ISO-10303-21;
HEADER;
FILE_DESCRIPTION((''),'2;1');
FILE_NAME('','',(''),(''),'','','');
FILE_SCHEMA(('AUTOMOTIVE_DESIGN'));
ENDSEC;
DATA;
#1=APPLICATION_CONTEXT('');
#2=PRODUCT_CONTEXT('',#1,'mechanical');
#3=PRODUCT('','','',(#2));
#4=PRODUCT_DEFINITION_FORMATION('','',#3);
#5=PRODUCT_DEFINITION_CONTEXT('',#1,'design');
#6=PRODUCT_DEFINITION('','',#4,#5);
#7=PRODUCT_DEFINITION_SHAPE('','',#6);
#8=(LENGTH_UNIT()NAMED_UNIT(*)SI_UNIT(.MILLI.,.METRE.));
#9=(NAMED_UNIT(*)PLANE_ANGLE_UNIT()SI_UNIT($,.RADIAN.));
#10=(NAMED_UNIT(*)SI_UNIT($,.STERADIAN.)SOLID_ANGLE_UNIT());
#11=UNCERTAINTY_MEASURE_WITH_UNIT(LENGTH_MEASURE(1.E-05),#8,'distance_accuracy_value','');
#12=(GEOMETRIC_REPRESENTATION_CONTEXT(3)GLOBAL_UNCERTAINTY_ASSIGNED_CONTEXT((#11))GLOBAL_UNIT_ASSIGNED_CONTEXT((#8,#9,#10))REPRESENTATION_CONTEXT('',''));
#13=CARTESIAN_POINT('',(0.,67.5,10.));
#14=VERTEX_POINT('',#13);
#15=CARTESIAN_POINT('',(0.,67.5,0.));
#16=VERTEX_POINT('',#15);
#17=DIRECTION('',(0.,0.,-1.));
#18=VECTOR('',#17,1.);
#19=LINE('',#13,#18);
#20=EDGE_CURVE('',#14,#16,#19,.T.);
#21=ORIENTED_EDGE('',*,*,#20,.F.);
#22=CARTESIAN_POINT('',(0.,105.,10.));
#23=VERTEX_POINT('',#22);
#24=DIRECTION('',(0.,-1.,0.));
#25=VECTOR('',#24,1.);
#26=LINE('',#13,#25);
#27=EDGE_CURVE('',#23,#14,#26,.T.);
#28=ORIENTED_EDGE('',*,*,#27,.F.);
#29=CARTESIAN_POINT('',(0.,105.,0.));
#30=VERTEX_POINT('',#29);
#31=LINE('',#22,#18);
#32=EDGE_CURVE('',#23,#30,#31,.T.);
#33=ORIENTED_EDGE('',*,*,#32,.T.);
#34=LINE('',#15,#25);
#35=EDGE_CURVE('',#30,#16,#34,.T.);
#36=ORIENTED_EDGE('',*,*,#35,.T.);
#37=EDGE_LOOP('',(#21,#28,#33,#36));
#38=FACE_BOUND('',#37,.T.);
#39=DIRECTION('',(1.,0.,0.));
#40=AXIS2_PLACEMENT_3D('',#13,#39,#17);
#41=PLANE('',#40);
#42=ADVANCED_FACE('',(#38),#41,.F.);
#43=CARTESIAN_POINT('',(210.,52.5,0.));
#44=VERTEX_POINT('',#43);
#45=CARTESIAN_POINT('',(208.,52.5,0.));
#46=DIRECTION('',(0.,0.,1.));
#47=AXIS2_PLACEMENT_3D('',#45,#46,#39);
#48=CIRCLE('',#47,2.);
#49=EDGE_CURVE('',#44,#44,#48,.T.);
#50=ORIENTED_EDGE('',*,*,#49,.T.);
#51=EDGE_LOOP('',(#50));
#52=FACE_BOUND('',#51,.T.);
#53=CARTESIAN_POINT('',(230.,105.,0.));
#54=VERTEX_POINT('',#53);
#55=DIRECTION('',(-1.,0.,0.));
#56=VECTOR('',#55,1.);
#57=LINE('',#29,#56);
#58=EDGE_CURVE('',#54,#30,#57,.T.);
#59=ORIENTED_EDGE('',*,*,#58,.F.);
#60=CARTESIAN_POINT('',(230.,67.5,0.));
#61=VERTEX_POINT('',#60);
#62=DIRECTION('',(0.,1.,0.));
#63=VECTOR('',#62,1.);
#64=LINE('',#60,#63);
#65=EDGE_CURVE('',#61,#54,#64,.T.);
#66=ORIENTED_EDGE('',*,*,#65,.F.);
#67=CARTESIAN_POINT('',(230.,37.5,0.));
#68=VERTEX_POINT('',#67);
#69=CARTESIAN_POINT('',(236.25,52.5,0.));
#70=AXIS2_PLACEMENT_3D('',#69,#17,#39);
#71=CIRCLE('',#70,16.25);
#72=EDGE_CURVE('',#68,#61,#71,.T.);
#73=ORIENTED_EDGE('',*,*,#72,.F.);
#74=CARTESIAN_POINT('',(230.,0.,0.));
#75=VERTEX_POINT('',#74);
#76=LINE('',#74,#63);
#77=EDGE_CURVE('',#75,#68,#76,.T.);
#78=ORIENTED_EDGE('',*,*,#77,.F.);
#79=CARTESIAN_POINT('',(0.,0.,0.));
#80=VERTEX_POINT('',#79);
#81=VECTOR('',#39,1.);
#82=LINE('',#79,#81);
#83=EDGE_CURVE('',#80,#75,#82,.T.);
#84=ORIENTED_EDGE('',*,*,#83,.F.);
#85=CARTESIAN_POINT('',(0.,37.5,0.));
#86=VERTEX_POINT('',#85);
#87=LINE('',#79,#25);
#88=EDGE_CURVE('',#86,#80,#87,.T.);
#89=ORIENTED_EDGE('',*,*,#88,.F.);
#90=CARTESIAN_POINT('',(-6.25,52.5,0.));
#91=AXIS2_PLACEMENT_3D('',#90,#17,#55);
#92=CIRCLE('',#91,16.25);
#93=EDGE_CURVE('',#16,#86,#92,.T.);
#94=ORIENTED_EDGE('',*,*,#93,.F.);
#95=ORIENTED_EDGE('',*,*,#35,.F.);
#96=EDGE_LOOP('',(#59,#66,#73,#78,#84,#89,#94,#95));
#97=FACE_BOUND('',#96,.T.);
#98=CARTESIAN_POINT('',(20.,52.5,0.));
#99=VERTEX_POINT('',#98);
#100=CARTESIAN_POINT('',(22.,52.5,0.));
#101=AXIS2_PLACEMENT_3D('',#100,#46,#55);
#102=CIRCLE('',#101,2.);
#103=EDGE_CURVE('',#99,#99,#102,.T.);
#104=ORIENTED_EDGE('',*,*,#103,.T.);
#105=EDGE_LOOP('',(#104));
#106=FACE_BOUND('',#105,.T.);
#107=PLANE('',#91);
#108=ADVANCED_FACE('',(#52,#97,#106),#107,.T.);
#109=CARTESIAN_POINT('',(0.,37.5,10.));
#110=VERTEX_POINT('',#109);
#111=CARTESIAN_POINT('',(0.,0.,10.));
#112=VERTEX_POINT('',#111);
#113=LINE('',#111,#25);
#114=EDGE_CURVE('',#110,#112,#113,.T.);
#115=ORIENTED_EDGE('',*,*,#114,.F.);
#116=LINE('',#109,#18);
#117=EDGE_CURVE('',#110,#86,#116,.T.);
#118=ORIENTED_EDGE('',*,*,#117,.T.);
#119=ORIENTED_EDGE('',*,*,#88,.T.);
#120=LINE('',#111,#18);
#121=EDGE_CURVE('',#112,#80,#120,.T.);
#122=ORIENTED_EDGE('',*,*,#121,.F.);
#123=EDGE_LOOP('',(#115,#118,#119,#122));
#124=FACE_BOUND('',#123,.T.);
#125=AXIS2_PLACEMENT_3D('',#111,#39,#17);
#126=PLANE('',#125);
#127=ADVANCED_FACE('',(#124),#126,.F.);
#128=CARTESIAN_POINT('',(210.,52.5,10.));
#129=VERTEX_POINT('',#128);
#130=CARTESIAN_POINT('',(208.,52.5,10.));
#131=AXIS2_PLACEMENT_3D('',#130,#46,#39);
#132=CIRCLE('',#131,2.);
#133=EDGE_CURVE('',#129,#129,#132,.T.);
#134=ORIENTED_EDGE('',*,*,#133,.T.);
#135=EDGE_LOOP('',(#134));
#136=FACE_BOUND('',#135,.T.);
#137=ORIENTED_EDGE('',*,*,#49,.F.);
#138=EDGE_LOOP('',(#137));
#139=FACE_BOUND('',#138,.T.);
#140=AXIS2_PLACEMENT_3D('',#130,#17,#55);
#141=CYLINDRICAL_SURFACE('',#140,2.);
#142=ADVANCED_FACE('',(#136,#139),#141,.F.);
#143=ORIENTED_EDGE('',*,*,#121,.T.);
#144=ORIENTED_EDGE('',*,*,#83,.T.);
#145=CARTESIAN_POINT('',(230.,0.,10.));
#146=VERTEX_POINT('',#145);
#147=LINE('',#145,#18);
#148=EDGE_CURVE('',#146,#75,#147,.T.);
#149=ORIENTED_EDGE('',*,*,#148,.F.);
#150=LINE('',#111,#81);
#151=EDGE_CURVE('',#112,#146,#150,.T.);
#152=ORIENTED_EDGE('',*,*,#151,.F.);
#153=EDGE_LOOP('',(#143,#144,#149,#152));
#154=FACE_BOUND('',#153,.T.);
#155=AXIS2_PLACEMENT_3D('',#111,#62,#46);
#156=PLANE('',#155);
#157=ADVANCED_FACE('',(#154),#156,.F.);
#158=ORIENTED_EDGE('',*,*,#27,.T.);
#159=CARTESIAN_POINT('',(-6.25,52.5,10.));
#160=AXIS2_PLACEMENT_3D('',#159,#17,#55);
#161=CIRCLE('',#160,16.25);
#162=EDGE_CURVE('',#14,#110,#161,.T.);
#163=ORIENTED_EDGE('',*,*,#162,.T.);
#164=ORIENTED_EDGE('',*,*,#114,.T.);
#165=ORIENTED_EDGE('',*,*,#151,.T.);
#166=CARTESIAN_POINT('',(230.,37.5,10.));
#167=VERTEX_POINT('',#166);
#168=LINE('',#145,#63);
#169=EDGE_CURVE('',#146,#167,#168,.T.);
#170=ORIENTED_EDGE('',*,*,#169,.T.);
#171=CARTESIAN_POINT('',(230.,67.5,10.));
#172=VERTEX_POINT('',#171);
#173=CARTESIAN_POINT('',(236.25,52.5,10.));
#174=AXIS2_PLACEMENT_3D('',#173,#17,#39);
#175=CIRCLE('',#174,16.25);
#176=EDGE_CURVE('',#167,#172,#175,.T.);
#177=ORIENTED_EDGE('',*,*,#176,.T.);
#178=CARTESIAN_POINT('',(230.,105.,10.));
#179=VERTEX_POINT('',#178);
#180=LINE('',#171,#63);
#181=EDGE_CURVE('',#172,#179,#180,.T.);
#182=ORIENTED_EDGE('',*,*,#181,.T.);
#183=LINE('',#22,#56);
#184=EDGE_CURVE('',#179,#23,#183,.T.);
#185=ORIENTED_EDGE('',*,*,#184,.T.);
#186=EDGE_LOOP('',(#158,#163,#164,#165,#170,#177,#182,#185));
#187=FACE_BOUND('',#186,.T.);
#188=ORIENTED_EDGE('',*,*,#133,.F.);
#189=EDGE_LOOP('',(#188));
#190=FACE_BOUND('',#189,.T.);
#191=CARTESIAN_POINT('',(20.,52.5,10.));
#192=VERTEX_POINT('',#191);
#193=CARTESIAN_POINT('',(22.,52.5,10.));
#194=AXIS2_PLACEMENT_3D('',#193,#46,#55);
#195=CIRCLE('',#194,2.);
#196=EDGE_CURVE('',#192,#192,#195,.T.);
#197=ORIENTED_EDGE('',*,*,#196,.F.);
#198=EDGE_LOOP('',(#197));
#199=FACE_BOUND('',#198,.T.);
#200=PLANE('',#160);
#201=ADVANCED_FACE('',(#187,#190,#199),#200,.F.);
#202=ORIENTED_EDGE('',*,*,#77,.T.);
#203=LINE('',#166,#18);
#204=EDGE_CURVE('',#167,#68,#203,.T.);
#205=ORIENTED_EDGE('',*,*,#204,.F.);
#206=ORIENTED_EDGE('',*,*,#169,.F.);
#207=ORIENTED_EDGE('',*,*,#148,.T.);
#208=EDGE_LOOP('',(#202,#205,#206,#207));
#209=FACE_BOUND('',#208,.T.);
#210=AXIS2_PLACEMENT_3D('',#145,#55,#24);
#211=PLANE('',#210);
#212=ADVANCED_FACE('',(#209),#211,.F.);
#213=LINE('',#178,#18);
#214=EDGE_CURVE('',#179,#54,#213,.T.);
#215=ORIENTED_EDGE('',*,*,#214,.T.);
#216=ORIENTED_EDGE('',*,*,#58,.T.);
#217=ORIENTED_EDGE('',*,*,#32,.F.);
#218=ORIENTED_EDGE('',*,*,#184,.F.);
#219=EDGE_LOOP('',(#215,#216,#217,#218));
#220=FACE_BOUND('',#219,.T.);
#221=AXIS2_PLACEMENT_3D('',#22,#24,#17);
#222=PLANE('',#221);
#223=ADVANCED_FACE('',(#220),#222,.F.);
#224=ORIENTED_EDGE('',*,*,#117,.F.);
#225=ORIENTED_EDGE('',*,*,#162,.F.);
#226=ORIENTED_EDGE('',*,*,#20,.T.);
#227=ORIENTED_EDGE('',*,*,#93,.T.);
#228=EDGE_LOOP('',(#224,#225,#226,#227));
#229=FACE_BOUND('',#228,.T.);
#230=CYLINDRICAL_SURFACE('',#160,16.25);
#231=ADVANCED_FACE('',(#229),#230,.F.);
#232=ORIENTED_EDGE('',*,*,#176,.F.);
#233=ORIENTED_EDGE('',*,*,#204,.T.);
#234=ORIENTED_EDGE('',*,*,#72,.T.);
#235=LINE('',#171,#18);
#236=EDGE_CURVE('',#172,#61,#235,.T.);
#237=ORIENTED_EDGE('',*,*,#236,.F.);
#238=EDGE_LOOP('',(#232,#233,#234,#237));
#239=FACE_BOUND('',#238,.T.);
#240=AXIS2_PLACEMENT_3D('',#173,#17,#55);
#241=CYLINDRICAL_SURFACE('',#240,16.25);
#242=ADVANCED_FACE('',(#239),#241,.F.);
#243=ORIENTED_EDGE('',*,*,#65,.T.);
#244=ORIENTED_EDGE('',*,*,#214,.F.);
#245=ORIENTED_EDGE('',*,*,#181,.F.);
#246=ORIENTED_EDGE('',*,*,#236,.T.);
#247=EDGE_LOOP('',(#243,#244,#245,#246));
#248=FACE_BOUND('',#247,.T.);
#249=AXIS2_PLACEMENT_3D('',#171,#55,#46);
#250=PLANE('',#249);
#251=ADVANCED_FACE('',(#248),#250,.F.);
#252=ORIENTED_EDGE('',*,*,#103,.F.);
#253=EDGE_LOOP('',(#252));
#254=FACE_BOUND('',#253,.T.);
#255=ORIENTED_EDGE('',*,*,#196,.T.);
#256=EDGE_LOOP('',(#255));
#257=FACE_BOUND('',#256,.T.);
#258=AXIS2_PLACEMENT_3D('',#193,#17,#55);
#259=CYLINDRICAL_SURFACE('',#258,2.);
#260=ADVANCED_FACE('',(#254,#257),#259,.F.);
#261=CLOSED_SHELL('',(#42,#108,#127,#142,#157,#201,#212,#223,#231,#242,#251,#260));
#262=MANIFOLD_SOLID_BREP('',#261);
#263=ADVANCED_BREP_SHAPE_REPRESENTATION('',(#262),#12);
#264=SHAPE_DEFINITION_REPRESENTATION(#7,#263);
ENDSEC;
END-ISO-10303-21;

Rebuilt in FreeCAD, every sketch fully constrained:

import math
import FreeCAD as App
import Part
import Sketcher

V = App.Vector

doc = App.newDocument("Part")
params = doc.addObject("Spreadsheet::Sheet", "Params")
for row, (alias, value) in enumerate([
    ("sketch1_diameter", "4 mm"),
    ("sketch1_width", "230 mm"),
    ("sketch1_radius", "16.25 mm"),
    ("sketch1_height", "37.5 mm"),
    ("pad1_length", "10 mm"),
], start=1):
    params.set(f"A{row}", alias)
    params.set(f"B{row}", "=" + value)
    params.setAlias(f"B{row}", alias)

body = doc.addObject("PartDesign::Body", "Body")

sketch1 = doc.addObject("Sketcher::SketchObject", "Sketch")
body.addObject(sketch1)
sketch1.AttachmentSupport = (doc.XY_Plane, [""])
sketch1.MapMode = "FlatFace"
sketch1.addGeometry([
    Part.LineSegment(V(0, 0, 0), V(230, 0, 0)),
    Part.LineSegment(V(230, 0, 0), V(230, 37.5, 0)),
    Part.ArcOfCircle(Part.Circle(V(236.25, 52.5, 0), V(0, 0, 1), 16.25), math.radians(112.619865), math.radians(247.380135)),
    Part.LineSegment(V(230, 67.5, 0), V(230, 105, 0)),
    Part.LineSegment(V(230, 105, 0), V(0, 105, 0)),
    Part.LineSegment(V(0, 105, 0), V(0, 67.5, 0)),
    Part.ArcOfCircle(Part.Circle(V(-6.25, 52.5, 0), V(0, 0, 1), 16.25), math.radians(-67.380135), math.radians(67.380135)),
    Part.LineSegment(V(0, 37.5, 0), V(0, 0, 0)),
    Part.Circle(V(22, 52.5, 0), V(0, 0, 1), 2),
    Part.Circle(V(208, 52.5, 0), V(0, 0, 1), 2),
], False)
sketch1.addConstraint([
    Sketcher.Constraint("Coincident", 0, 2, 1, 1),
    Sketcher.Constraint("Coincident", 1, 2, 2, 2),
    Sketcher.Constraint("Coincident", 2, 1, 3, 1),
    Sketcher.Constraint("Coincident", 3, 2, 4, 1),
    Sketcher.Constraint("Coincident", 4, 2, 5, 1),
    Sketcher.Constraint("Coincident", 5, 2, 6, 2),
    Sketcher.Constraint("Coincident", 6, 1, 7, 1),
    Sketcher.Constraint("Coincident", 7, 2, 0, 1),
    Sketcher.Constraint("Horizontal", 0),
    Sketcher.Constraint("Vertical", 1),
    Sketcher.Constraint("Vertical", 3),
    Sketcher.Constraint("Horizontal", 4),
    Sketcher.Constraint("Vertical", 5),
    Sketcher.Constraint("Vertical", 7),
    Sketcher.Constraint("Coincident", 7, 2, -1, 1),
    Sketcher.Constraint("Equal", 2, 6),
    Sketcher.Constraint("Equal", 8, 9),
    Sketcher.Constraint("PointOnObject", 4, 2, -2),
    Sketcher.Constraint("Horizontal", 2, 3, 6, 3),
    Sketcher.Constraint("Horizontal", 6, 3, 8, 3),
    Sketcher.Constraint("Horizontal", 8, 3, 9, 3),
    Sketcher.Constraint("Horizontal", 2, 1, 5, 2),
    Sketcher.Constraint("Horizontal", 1, 2, 6, 1),
    Sketcher.Constraint("Equal", 1, 3),
    Sketcher.Constraint("Diameter", 8, 4.0),
    Sketcher.Constraint("DistanceX", 0, 1, 0, 2, 230.0),
    Sketcher.Constraint("Radius", 2, 16.25),
    Sketcher.Constraint("DistanceY", 1, 1, 1, 2, 37.5),
    Sketcher.Constraint("DistanceX", -1, 1, 8, 3, 22.0),
    Sketcher.Constraint("DistanceX", -1, 1, 9, 3, 208.0),
    Sketcher.Constraint("DistanceY", -1, 1, 3, 2, 105.0),
])
sketch1.setExpression("Constraints[24]", "Params.sketch1_diameter")
sketch1.setExpression("Constraints[25]", "Params.sketch1_width")
sketch1.setExpression("Constraints[26]", "Params.sketch1_radius")
sketch1.setExpression("Constraints[27]", "Params.sketch1_height")
pad1 = doc.addObject("PartDesign::Pad", "Pad")
body.addObject(pad1)
pad1.Profile = sketch1
pad1.setExpression("Length", "Params.pad1_length")

doc.recompute()
